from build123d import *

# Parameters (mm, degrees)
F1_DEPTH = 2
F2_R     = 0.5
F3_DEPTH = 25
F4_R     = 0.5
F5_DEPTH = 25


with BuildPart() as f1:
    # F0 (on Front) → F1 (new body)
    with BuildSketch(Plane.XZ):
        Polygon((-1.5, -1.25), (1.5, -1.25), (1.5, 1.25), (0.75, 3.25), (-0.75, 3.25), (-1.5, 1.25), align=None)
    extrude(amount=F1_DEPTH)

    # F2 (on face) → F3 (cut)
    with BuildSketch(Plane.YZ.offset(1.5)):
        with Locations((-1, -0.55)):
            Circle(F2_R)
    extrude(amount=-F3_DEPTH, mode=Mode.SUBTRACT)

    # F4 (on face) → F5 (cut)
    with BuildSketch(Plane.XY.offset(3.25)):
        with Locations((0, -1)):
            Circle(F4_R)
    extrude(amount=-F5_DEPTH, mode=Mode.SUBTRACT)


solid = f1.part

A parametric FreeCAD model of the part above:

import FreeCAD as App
import Part
import Sketcher


def add_polygon(sketch, points):
    """Adds a closed chain of lines whose ends are joined by coincident constraints."""
    first, n = sketch.GeometryCount, len(points)
    for a, b in zip(points, points[1:] + points[:1]):
        sketch.addGeometry(Part.LineSegment(App.Vector(*a, 0), App.Vector(*b, 0)), False)
    for i in range(n):
        sketch.addConstraint(Sketcher.Constraint("Coincident", first + i, 2, first + (i + 1) % n, 1))

doc = App.newDocument("Part")
params = doc.addObject("Spreadsheet::Sheet", "Params")
for row, (alias, value) in enumerate([
    ("sketch1_width", "3 mm"),
    ("sketch1_width2", "1.5 mm"),
    ("sketch1_height", "2.5 mm"),
    ("pad1_length", "2 mm"),
    ("sketch2_diameter", "1 mm"),
    ("pocket1_length", "25 mm"),
    ("sketch3_diameter", "1 mm"),
    ("pocket2_length", "25 mm"),
], start=1):
    params.set(f"A{row}", alias)
    params.set(f"B{row}", "=" + value)
    params.setAlias(f"B{row}", alias)

body = doc.addObject("PartDesign::Body", "Body")

sketch1 = body.newObject("Sketcher::SketchObject", "Sketch")
sketch1.AttachmentSupport = (doc.getObject("XZ_Plane"), [""])
sketch1.MapMode = "FlatFace"
add_polygon(sketch1, [(-1.5, -1.2), (1.5, -1.2), (1.5, 1.2), (0.8, 3.2), (-0.8, 3.2), (-1.5, 1.2)])
sketch1.addConstraint([
    Sketcher.Constraint("Horizontal", 0),
    Sketcher.Constraint("Vertical", 1),
    Sketcher.Constraint("Horizontal", 3),
    Sketcher.Constraint("Vertical", 5),
    Sketcher.Constraint("Symmetric", 0, 2, 4, 2, -1, 1),
    Sketcher.Constraint("Horizontal", 1, 2, 4, 2),
    Sketcher.Constraint("Equal", 2, 4),
    Sketcher.Constraint("DistanceX", 0, 1, 0, 2, 3.0),
    Sketcher.Constraint("DistanceX", 3, 2, 3, 1, 1.5),
    Sketcher.Constraint("DistanceY", 1, 1, 1, 2, 2.5),
    Sketcher.Constraint("DistanceY", 1, 2, 2, 2, 2.0),
])
sketch1.setExpression("Constraints[13]", "Params.sketch1_width")
sketch1.setExpression("Constraints[14]", "Params.sketch1_width2")
sketch1.setExpression("Constraints[15]", "Params.sketch1_height")
pad1 = body.newObject("PartDesign::Pad", "Pad")
pad1.Profile = sketch1
pad1.setExpression("Length", "Params.pad1_length")

sketch2 = body.newObject("Sketcher::SketchObject", "Sketch001")
sketch2.AttachmentSupport = (doc.getObject("YZ_Plane"), [""])
sketch2.MapMode = "FlatFace"
sketch2.AttachmentOffset = App.Placement(App.Vector(0, 0, 1.5), App.Rotation())
sketch2.addGeometry(Part.Circle(App.Vector(-1, -0.6, 0), App.Vector(0, 0, 1), 0.5), False)
sketch2.addConstraint([
    Sketcher.Constraint("Diameter", 0, 1.0),
    Sketcher.Constraint("DistanceX", 0, 3, -1, 1, 1.0),
    Sketcher.Constraint("DistanceY", 0, 3, -1, 1, 0.55),
])
sketch2.setExpression("Constraints[0]", "Params.sketch2_diameter")
pocket1 = body.newObject("PartDesign::Pocket", "Pocket")
pocket1.Profile = sketch2
pocket1.setExpression("Length", "Params.pocket1_length")

sketch3 = body.newObject("Sketcher::SketchObject", "Sketch002")
sketch3.AttachmentSupport = (doc.getObject("XY_Plane"), [""])
sketch3.MapMode = "FlatFace"
sketch3.AttachmentOffset = App.Placement(App.Vector(0, 0, 3.25), App.Rotation())
sketch3.addGeometry(Part.Circle(App.Vector(0, -1, 0), App.Vector(0, 0, 1), 0.5), False)
sketch3.addConstraint([
    Sketcher.Constraint("PointOnObject", 0, 3, -2),
    Sketcher.Constraint("Diameter", 0, 1.0),
    Sketcher.Constraint("DistanceY", 0, 3, -1, 1, 1.0),
])
sketch3.setExpression("Constraints[1]", "Params.sketch3_diameter")
pocket2 = body.newObject("PartDesign::Pocket", "Pocket001")
pocket2.Profile = sketch3
pocket2.setExpression("Length", "Params.pocket2_length")

doc.recompute()
